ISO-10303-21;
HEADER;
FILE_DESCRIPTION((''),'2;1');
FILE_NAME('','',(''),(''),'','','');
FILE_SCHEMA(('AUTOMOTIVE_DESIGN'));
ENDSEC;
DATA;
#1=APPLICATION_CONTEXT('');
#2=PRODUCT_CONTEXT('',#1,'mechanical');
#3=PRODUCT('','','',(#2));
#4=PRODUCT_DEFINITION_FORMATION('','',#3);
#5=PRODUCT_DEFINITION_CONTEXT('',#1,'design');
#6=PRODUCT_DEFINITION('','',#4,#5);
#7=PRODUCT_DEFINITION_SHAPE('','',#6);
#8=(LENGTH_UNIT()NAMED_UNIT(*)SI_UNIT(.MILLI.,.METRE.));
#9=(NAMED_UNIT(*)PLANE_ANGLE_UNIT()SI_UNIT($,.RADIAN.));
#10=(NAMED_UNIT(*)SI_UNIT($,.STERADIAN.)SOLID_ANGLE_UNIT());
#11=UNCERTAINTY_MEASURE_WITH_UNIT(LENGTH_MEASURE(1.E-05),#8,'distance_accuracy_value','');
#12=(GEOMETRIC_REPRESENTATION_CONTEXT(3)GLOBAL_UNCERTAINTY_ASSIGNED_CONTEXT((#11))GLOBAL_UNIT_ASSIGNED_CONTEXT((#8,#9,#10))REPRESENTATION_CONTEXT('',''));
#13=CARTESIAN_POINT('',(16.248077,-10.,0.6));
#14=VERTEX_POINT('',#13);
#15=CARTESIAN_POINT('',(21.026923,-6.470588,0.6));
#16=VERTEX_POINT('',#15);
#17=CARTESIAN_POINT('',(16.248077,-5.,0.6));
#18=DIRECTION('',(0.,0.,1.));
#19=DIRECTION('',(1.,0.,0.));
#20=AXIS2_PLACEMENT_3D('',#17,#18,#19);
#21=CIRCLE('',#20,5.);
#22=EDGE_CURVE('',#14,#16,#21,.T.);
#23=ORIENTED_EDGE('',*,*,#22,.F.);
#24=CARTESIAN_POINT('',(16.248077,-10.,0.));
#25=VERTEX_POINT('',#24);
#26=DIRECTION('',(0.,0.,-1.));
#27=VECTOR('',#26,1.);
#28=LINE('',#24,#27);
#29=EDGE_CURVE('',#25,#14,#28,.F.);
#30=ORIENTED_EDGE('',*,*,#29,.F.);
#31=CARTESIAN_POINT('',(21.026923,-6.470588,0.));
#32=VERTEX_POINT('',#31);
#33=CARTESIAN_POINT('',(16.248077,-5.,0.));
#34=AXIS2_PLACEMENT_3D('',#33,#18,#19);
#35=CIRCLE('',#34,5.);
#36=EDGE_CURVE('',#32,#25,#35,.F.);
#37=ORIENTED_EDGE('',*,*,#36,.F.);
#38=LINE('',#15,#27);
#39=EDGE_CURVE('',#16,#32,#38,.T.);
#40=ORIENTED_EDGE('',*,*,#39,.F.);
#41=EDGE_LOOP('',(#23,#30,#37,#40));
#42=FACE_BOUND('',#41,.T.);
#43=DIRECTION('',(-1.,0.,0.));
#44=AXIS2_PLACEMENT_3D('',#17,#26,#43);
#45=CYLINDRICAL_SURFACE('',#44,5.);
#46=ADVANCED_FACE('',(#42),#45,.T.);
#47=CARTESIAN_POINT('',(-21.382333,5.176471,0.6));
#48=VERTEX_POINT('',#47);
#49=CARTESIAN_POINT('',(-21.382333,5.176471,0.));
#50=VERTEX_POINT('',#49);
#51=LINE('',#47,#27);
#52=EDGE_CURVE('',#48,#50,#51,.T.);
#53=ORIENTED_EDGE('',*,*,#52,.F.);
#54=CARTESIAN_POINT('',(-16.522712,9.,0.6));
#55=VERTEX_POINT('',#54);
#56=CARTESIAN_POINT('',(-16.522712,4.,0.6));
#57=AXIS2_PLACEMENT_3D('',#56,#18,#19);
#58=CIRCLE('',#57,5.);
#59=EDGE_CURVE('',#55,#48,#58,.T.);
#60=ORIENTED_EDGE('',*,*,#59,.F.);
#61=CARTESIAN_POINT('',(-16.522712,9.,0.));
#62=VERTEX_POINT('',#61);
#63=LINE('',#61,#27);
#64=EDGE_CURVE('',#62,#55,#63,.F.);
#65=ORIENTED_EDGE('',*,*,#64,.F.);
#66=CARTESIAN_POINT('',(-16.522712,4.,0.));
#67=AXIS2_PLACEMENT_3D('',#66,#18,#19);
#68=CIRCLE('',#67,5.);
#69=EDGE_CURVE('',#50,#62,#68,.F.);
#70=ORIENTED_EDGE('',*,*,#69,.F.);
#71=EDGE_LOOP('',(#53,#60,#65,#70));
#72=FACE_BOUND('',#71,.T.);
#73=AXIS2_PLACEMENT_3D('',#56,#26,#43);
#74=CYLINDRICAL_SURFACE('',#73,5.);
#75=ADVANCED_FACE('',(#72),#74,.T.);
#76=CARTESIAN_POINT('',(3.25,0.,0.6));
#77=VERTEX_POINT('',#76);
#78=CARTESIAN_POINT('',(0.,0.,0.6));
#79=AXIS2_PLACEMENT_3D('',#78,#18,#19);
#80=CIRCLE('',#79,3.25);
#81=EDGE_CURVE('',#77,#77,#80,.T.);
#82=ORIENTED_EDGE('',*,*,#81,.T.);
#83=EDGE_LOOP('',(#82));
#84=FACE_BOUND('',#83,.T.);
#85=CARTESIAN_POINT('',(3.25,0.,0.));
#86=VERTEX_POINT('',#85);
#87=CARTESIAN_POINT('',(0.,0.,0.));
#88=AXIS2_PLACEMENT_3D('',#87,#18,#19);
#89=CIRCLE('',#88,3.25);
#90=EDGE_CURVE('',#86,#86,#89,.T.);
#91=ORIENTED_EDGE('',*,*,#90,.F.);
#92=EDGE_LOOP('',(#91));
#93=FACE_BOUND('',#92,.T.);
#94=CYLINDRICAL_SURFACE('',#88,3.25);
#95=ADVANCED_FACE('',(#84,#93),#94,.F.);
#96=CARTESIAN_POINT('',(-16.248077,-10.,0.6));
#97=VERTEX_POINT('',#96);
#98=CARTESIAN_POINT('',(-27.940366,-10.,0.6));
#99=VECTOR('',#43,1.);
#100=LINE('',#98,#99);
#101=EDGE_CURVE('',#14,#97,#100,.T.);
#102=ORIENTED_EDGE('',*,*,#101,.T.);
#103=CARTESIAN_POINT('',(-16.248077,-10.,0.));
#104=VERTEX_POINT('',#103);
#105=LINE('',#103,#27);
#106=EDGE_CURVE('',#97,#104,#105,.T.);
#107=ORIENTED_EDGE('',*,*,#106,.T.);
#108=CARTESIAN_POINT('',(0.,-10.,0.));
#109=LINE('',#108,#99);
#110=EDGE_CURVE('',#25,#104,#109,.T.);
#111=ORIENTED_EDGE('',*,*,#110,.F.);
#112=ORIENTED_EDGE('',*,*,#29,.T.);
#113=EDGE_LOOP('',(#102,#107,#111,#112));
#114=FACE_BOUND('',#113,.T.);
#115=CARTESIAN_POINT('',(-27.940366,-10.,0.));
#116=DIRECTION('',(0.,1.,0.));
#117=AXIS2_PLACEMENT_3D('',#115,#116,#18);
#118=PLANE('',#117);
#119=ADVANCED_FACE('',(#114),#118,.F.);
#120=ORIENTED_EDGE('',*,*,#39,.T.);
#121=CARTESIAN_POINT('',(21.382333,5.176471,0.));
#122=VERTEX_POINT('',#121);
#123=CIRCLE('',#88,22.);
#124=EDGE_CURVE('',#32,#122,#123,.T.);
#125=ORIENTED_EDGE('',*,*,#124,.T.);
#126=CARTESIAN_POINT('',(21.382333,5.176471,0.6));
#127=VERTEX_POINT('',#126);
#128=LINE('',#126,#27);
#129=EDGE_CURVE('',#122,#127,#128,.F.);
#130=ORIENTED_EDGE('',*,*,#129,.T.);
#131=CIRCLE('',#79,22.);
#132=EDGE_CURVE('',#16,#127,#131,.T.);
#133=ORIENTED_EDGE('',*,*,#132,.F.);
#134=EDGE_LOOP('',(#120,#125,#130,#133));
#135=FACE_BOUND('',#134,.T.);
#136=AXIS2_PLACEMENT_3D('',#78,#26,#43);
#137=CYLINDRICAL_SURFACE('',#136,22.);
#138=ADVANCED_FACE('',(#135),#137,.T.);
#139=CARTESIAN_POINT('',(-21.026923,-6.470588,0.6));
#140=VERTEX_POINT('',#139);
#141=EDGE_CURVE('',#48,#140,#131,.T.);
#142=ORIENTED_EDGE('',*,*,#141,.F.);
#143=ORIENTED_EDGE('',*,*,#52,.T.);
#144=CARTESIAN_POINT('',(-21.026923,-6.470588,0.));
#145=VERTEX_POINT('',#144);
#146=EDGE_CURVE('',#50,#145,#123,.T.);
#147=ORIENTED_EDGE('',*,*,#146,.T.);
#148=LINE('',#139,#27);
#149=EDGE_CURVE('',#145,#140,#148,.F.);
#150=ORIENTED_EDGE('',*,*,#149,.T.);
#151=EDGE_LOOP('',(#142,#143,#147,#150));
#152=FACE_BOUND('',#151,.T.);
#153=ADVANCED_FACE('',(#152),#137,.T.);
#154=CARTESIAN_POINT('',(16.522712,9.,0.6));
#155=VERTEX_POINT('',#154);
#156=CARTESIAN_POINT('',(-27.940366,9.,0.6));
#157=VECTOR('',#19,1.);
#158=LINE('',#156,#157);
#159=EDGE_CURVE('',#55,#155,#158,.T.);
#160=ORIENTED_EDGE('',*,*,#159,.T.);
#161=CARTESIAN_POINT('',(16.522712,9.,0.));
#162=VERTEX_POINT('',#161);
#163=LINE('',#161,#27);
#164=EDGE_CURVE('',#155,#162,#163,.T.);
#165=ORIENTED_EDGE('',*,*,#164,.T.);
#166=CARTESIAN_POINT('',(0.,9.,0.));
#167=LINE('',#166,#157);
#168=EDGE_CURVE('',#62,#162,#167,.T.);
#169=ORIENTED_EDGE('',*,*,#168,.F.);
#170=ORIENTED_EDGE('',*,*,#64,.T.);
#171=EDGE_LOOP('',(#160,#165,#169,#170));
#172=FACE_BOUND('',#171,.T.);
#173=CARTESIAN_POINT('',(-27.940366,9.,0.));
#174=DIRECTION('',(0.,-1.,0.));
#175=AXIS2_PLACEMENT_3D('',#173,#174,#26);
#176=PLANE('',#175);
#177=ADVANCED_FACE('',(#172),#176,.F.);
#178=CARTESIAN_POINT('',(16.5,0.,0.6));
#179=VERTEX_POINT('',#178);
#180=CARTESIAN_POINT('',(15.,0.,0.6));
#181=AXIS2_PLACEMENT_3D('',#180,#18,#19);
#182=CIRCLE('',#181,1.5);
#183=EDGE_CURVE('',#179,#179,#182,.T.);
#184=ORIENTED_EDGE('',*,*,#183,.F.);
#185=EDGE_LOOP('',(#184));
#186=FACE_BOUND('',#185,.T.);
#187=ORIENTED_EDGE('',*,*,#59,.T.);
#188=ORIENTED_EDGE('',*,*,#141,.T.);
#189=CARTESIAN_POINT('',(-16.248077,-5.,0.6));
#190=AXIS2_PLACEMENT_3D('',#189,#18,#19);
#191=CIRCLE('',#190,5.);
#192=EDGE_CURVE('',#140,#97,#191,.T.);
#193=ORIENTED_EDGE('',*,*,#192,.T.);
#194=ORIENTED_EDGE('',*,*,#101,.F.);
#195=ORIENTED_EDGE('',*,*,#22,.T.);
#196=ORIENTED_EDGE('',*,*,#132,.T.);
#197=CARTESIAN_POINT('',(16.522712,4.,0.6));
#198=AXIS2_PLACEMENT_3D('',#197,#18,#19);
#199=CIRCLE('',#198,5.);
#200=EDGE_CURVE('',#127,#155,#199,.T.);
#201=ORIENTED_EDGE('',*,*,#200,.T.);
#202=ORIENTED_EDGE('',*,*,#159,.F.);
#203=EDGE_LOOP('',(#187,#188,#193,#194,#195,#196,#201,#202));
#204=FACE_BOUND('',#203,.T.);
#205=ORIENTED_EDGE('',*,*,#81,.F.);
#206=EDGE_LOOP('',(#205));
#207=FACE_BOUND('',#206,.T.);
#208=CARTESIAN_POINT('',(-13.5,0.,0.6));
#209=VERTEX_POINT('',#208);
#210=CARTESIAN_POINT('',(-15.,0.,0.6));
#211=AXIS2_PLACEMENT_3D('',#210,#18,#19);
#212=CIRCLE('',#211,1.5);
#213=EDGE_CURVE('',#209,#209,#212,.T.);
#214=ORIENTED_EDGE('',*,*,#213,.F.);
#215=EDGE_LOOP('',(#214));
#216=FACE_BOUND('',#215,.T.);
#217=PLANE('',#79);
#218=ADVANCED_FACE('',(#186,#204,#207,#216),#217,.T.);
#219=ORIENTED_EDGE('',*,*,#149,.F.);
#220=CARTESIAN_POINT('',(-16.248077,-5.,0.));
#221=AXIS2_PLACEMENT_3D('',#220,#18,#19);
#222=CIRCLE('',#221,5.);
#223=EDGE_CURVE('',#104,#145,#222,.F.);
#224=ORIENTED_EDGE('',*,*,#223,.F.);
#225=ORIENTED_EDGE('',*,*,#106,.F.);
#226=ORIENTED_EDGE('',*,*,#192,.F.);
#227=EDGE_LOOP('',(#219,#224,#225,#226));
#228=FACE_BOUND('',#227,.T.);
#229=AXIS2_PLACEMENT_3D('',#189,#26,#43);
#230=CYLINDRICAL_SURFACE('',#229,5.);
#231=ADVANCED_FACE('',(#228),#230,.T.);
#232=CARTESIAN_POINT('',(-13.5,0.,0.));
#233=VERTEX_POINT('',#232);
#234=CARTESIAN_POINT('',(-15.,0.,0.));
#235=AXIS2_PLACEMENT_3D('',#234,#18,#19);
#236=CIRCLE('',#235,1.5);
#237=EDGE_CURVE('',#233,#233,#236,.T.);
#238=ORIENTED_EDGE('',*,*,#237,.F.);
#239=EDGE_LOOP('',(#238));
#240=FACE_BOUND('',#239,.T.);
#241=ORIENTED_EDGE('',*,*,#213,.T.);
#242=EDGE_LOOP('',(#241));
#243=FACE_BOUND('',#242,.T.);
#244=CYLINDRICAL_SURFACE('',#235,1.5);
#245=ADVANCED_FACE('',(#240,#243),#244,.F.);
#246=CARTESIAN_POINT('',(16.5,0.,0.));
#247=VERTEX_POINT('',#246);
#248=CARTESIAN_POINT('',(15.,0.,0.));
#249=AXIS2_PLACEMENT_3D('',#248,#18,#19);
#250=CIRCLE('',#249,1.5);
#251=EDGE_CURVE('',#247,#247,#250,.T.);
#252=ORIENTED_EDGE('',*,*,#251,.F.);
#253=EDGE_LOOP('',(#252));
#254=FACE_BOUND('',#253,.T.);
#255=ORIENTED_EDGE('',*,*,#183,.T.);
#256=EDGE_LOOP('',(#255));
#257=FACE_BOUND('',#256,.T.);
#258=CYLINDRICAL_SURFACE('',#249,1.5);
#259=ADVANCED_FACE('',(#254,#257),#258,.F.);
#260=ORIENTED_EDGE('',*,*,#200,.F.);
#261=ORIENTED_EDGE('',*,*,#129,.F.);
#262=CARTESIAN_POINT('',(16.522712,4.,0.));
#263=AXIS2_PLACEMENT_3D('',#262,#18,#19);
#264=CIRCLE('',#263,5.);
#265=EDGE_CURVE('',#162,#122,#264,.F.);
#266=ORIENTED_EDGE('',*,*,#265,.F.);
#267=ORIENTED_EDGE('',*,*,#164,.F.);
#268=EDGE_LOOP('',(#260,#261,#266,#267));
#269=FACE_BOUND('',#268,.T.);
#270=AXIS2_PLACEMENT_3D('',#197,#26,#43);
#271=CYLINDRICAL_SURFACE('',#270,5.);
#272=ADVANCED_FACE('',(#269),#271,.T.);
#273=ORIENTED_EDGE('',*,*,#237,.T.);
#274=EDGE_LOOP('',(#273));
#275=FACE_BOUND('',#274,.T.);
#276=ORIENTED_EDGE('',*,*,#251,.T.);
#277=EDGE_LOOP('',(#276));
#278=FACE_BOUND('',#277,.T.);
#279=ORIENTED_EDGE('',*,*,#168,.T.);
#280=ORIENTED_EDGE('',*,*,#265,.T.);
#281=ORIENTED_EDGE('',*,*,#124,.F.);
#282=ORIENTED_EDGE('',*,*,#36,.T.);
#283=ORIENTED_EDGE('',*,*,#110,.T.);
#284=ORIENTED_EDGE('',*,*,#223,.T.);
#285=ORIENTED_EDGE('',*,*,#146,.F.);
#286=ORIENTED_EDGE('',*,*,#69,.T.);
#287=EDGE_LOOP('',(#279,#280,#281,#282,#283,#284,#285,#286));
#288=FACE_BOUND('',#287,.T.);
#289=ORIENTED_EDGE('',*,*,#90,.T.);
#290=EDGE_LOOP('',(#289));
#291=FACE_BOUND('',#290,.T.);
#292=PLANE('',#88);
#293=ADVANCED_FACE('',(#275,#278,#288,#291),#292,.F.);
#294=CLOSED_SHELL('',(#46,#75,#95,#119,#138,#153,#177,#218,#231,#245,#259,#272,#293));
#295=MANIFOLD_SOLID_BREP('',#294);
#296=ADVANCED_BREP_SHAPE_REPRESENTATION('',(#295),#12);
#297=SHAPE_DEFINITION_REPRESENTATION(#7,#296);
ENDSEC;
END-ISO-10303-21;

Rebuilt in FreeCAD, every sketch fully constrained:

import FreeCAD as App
import Part
import Sketcher

V = App.Vector
Q = App.Units.Quantity


def edges_at(feature, points):
    """Names of the edges that pass closest to the given points."""
    edges = feature.Shape.Edges
    near = lambda p: min(range(len(edges)), key=lambda i: edges[i].distToShape(Part.Vertex(*p))[0])
    return sorted({f"Edge{near(p) + 1}" for p in points})


def add_polygon(sketch, points):
    """Adds a closed chain of lines whose ends are joined by coincident constraints."""
    first, n = sketch.GeometryCount, len(points)
    for a, b in zip(points, points[1:] + points[:1]):
        sketch.addGeometry(Part.LineSegment(App.Vector(*a, 0), App.Vector(*b, 0)), False)
    for i in range(n):
        sketch.addConstraint(Sketcher.Constraint("Coincident", first + i, 2, first + (i + 1) % n, 1))

doc = App.newDocument("Part")
body = doc.addObject("PartDesign::Body", "Body")

sketch1 = doc.addObject("Sketcher::SketchObject", "Sketch")
body.addObject(sketch1)
sketch1.AttachmentSupport = (doc.XY_Plane, [""])
sketch1.MapMode = "FlatFace"
sketch1.addGeometry(Part.Circle(V(0, 0, 0), V(0, 0, 1), 22), False)
sketch1.addConstraint([
    Sketcher.Constraint("Coincident", 0, 3, -1, 1),
    Sketcher.Constraint("Diameter", 0, Q("44 mm")),
])
pad1 = doc.addObject("PartDesign::Pad", "Pad")
body.addObject(pad1)
pad1.Profile = sketch1
pad1.Length = 0.6

sketch2 = doc.addObject("Sketcher::SketchObject", "Sketch001")
body.addObject(sketch2)
sketch2.AttachmentSupport = (doc.XY_Plane, [""])
sketch2.MapMode = "FlatFace"
sketch2.AttachmentOffset = App.Placement(V(0, 0, 0.6), App.Rotation())
sketch2.addGeometry(Part.Circle(V(0, 0, 0), V(0, 0, 1), 3.2), False)
sketch2.addConstraint([
    Sketcher.Constraint("Coincident", 0, 3, -1, 1),
    Sketcher.Constraint("Diameter", 0, Q("6.5 mm")),
])
pocket1 = doc.addObject("PartDesign::Pocket", "Pocket")
body.addObject(pocket1)
pocket1.Profile = sketch2
pocket1.Type = "ThroughAll"

sketch3 = doc.addObject("Sketcher::SketchObject", "Sketch002")
body.addObject(sketch3)
sketch3.AttachmentSupport = (doc.XY_Plane, [""])
sketch3.MapMode = "FlatFace"
sketch3.AttachmentOffset = App.Placement(V(0, 0, 0.6), App.Rotation())
sketch3.addGeometry([
    Part.Circle(V(-15, 0, 0), V(0, 0, 1), 1.5),
    Part.Circle(V(15, 0, 0), V(0, 0, 1), 1.5),
], False)
sketch3.addConstraint([
    Sketcher.Constraint("Equal", 0, 1),
    Sketcher.Constraint("Symmetric", 0, 3, 1, 3, -1, 1),
    Sketcher.Constraint("PointOnObject", 0, 3, -1),
    Sketcher.Constraint("Diameter", 0, Q("3 mm")),
    Sketcher.Constraint("DistanceX", 0, 3, -1, 1, Q("15 mm")),
])
pocket2 = doc.addObject("PartDesign::Pocket", "Pocket001")
body.addObject(pocket2)
pocket2.Profile = sketch3
pocket2.Type = "ThroughAll"

sketch4 = doc.addObject("Sketcher::SketchObject", "Sketch003")
body.addObject(sketch4)
sketch4.AttachmentSupport = (doc.XY_Plane, [""])
sketch4.MapMode = "FlatFace"
sketch4.AttachmentOffset = App.Placement(V(0, 0, 0.6), App.Rotation())
add_polygon(sketch4, [(-28, 29), (-28, 9), (28, 9), (28, 29)])
add_polygon(sketch4, [(-28, -10), (-28, -32), (29, -32), (29, -10)])
sketch4.addConstraint([
    Sketcher.Constraint("Vertical", 0),
    Sketcher.Constraint("Horizontal", 1),
    Sketcher.Constraint("Vertical", 2),
    Sketcher.Constraint("Horizontal", 3),
    Sketcher.Constraint("Vertical", 4),
    Sketcher.Constraint("Horizontal", 5),
    Sketcher.Constraint("Vertical", 6),
    Sketcher.Constraint("Horizontal", 7),
    Sketcher.Constraint("Vertical", 3, 2, 4, 2),
    Sketcher.Constraint("DistanceY", -1, 1, 0, 2, Q("9 mm")),
    Sketcher.Constraint("DistanceY", 6, 2, -1, 1, Q("10 mm")),
    Sketcher.Constraint("DistanceY", 0, 2, 0, 1, Q("19.515049 mm")),
    Sketcher.Constraint("DistanceX", -1, 1, 1, 2, Q("28.156399 mm")),
    Sketcher.Constraint("DistanceX", 1, 1, 1, 2, Q("56.096765 mm")),
    Sketcher.Constraint("DistanceX", 5, 1, 5, 2, Q("56.672855 mm")),
    Sketcher.Constraint("DistanceY", 4, 2, 4, 1, Q("21.675387 mm")),
])
pocket3 = doc.addObject("PartDesign::Pocket", "Pocket002")
body.addObject(pocket3)
pocket3.Profile = sketch4
pocket3.Type = "ThroughAll"
doc.recompute()

fillet = doc.addObject("PartDesign::Fillet", "Fillet")
body.addObject(fillet)
fillet.Base = (pocket3, edges_at(pocket3, [
    (-20.075, 9, 0.3),
    (20.075, 9, 0.3),
    (19.596, -10, 0.3),
    (-19.596, -10, 0.3),
]))
fillet.Radius = 5

doc.recompute()
